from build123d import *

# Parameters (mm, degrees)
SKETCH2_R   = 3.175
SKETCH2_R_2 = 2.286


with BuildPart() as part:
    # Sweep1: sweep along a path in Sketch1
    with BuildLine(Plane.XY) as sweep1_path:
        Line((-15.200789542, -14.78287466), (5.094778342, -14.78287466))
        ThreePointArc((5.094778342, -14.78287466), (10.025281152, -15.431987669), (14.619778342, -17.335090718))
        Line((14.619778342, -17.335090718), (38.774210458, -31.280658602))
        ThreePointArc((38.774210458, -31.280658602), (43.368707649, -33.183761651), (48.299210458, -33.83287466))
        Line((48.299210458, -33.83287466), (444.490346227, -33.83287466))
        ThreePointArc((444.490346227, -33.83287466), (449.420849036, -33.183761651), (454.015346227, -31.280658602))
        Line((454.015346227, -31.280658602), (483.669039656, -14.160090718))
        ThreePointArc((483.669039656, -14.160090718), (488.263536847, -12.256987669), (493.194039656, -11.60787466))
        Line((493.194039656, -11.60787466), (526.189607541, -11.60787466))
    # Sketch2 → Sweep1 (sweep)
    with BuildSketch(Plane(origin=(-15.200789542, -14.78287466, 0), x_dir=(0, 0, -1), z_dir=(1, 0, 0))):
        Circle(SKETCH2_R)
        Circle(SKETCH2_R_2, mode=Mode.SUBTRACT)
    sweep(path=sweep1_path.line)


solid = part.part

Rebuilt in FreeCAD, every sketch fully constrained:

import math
import FreeCAD as App
import Part
import Sketcher

V = App.Vector
Q = App.Units.Quantity

doc = App.newDocument("Part")
body = doc.addObject("PartDesign::Body", "Body")

# Sketch on YZ plane
sketch1 = body.newObject("Sketcher::SketchObject", "Sketch")
sketch1.AttachmentSupport = (doc.getObject("YZ_Plane"), [""])
sketch1.MapMode = "FlatFace"
sketch1.AttachmentOffset = App.Placement(V(0, 0, -15.20079), App.Rotation())
sketch1.addGeometry([
    Part.Circle(V(-14.8, 0, 0), V(0, 0, 1), 3.2),
    Part.Circle(V(-14.8, 0, 0), V(0, 0, 1), 2.3),
], False)
sketch1.addConstraint([
    Sketcher.Constraint("Coincident", 1, 3, 0, 3),
    Sketcher.Constraint("PointOnObject", 0, 3, -1),
    Sketcher.Constraint("Diameter", 0, Q("0.25 in")),
    Sketcher.Constraint("Diameter", 1, Q("0.18 in")),
    Sketcher.Constraint("DistanceX", 0, 3, -1, 1, 14.782875),
])

# Sketch on XY plane
sketch2 = body.newObject("Sketcher::SketchObject", "Sketch001")
sketch2.AttachmentSupport = (doc.getObject("XY_Plane"), [""])
sketch2.MapMode = "FlatFace"
sketch2.addGeometry([
    Part.LineSegment(V(-15, -15, 0), V(5, -15, 0)),  # 0
    Part.ArcOfCircle(Part.Circle(V(5, -34, 0), V(0, 0, 1), 19), math.radians(60), math.radians(90)),  # 1
    Part.LineSegment(V(15, -17, 0), V(39, -31, 0)),  # 2
    Part.ArcOfCircle(Part.Circle(V(48, -15, 0), V(0, 0, 1), 19), math.radians(-120), math.radians(-90)),  # 3
    Part.LineSegment(V(48, -34, 0), V(444, -34, 0)),  # 4
    Part.ArcOfCircle(Part.Circle(V(444, -15, 0), V(0, 0, 1), 19), math.radians(-90), math.radians(-60)),  # 5
    Part.LineSegment(V(454, -31, 0), V(484, -14, 0)),  # 6
    Part.ArcOfCircle(Part.Circle(V(493, -31, 0), V(0, 0, 1), 19), math.radians(90), math.radians(120)),  # 7
    Part.LineSegment(V(493, -12, 0), V(526, -12, 0)),  # 8
], False)
sketch2.addConstraint([
    Sketcher.Constraint("Tangent", 0, 2, 1, 2),
    Sketcher.Constraint("Tangent", 1, 1, 2, 1),
    Sketcher.Constraint("Tangent", 2, 2, 3, 1),
    Sketcher.Constraint("Tangent", 3, 2, 4, 1),
    Sketcher.Constraint("Tangent", 4, 2, 5, 1),
    Sketcher.Constraint("Tangent", 5, 2, 6, 1),
    Sketcher.Constraint("Tangent", 6, 2, 7, 2),
    Sketcher.Constraint("Tangent", 7, 1, 8, 1),
    Sketcher.Constraint("Horizontal", 0),
    Sketcher.Constraint("Horizontal", 4),
    Sketcher.Constraint("Horizontal", 8),
    Sketcher.Constraint("Equal", 1, 3),
    Sketcher.Constraint("Equal", 3, 5),
    Sketcher.Constraint("Equal", 5, 7),
    Sketcher.Constraint("Horizontal", 5, 3, 0, 1),
    Sketcher.Constraint("Horizontal", 2, 2, 5, 2),
    Sketcher.Constraint("Radius", 1, Q("0.75 in")),
    Sketcher.Constraint("Angle", 2, Q("-30 deg")),
    Sketcher.Constraint("DistanceX", 0, 1, 3, 3, Q("2.5 in")),
    Sketcher.Constraint("DistanceY", 7, 3, 5, 3, Q("0.625 in")),
    Sketcher.Constraint("DistanceX", 4, 1, 4, 2, 396.191136),
    Sketcher.Constraint("DistanceX", 8, 1, 8, 2, 32.995568),
    Sketcher.Constraint("DistanceX", -1, 1, 1, 3, 5.094778),
    Sketcher.Constraint("DistanceY", 1, 1, -1, 1, 17.335091),
])
doc.recompute()

additivepipe = body.newObject("PartDesign::AdditivePipe", "AdditivePipe")
additivepipe.Profile = sketch1
additivepipe.Spine = (sketch2, ["Edge1", "Edge2", "Edge3", "Edge4", "Edge5", "Edge6", "Edge7", "Edge8", "Edge9"])

doc.recompute()
